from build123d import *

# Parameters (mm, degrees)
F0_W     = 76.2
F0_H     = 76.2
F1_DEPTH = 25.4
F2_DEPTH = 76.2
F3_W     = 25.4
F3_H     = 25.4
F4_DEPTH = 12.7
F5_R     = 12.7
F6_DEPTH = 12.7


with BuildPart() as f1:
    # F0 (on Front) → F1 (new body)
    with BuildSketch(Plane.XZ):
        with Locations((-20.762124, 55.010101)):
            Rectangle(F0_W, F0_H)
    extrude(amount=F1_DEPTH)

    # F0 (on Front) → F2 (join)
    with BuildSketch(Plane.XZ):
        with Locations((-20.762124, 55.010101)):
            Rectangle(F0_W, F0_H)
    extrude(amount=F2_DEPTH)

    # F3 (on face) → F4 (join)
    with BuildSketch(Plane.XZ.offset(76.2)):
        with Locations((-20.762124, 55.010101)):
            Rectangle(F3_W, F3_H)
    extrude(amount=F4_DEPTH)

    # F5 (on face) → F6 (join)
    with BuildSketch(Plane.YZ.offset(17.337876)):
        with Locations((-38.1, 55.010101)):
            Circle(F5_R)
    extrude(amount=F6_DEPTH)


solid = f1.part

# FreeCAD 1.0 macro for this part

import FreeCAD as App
import Part
import Sketcher
Q = App.Units.Quantity

doc = App.newDocument("Part")
body = doc.addObject("PartDesign::Body", "Body")

# Sketch on XZ plane
sketch1 = body.newObject("Sketcher::SketchObject", "Sketch")
sketch1.AttachmentSupport = (doc.getObject("XZ_Plane"), [""])
sketch1.MapMode = "FlatFace"
sketch1.addGeometry([
    Part.LineSegment(App.Vector(-59, 93, 0), App.Vector(-59, 17, 0)),
    Part.LineSegment(App.Vector(-59, 17, 0), App.Vector(17, 17, 0)),
    Part.LineSegment(App.Vector(17, 17, 0), App.Vector(17, 93, 0)),
    Part.LineSegment(App.Vector(17, 93, 0), App.Vector(-59, 93, 0)),
], False)
sketch1.addConstraint([
    Sketcher.Constraint("Coincident", 0, 2, 1, 1),
    Sketcher.Constraint("Coincident", 1, 2, 2, 1),
    Sketcher.Constraint("Coincident", 2, 2, 3, 1),
    Sketcher.Constraint("Coincident", 3, 2, 0, 1),
    Sketcher.Constraint("Vertical", 0),
    Sketcher.Constraint("Horizontal", 1),
    Sketcher.Constraint("Vertical", 2),
    Sketcher.Constraint("Horizontal", 3),
    Sketcher.Constraint("Equal", 3, 0),
    Sketcher.Constraint("DistanceX", 1, 1, 1, 2, Q("3 in")),
    Sketcher.Constraint("DistanceY", -1, 1, 0, 2, Q("16.910101 mm")),
    Sketcher.Constraint("DistanceX", 0, 2, -1, 1, Q("58.862124 mm")),
])
pad1 = body.newObject("PartDesign::Pad", "Pad")
pad1.Profile = sketch1
pad1.Length = Q("1 in")

# Sketch on XZ plane
sketch2 = body.newObject("Sketcher::SketchObject", "Sketch001")
sketch2.AttachmentSupport = (doc.getObject("XZ_Plane"), [""])
sketch2.MapMode = "FlatFace"
sketch2.addGeometry([
    Part.LineSegment(App.Vector(-59, 93, 0), App.Vector(-59, 17, 0)),
    Part.LineSegment(App.Vector(-59, 17, 0), App.Vector(17, 17, 0)),
    Part.LineSegment(App.Vector(17, 17, 0), App.Vector(17, 93, 0)),
    Part.LineSegment(App.Vector(17, 93, 0), App.Vector(-59, 93, 0)),
], False)
sketch2.addConstraint([
    Sketcher.Constraint("Coincident", 0, 2, 1, 1),
    Sketcher.Constraint("Coincident", 1, 2, 2, 1),
    Sketcher.Constraint("Coincident", 2, 2, 3, 1),
    Sketcher.Constraint("Coincident", 3, 2, 0, 1),
    Sketcher.Constraint("Vertical", 0),
    Sketcher.Constraint("Horizontal", 1),
    Sketcher.Constraint("Vertical", 2),
    Sketcher.Constraint("Horizontal", 3),
    Sketcher.Constraint("Equal", 3, 0),
    Sketcher.Constraint("DistanceX", 1, 1, 1, 2, Q("3 in")),
    Sketcher.Constraint("DistanceY", -1, 1, 0, 2, Q("16.910101 mm")),
    Sketcher.Constraint("DistanceX", 0, 2, -1, 1, Q("58.862124 mm")),
])
pad2 = body.newObject("PartDesign::Pad", "Pad001")
pad2.Profile = sketch2
pad2.Length = Q("3 in")

# Sketch on XZ plane
sketch3 = body.newObject("Sketcher::SketchObject", "Sketch002")
sketch3.AttachmentSupport = (doc.getObject("XZ_Plane"), [""])
sketch3.MapMode = "FlatFace"
sketch3.AttachmentOffset = App.Placement(App.Vector(0, 0, 3 * 25.4), App.Rotation())
sketch3.addGeometry([
    Part.LineSegment(App.Vector(-33, 68, 0), App.Vector(-33, 42, 0)),
    Part.LineSegment(App.Vector(-33, 42, 0), App.Vector(-8, 42, 0)),
    Part.LineSegment(App.Vector(-8, 42, 0), App.Vector(-8, 68, 0)),
    Part.LineSegment(App.Vector(-8, 68, 0), App.Vector(-33, 68, 0)),
], False)
sketch3.addConstraint([
    Sketcher.Constraint("Coincident", 0, 2, 1, 1),
    Sketcher.Constraint("Coincident", 1, 2, 2, 1),
    Sketcher.Constraint("Coincident", 2, 2, 3, 1),
    Sketcher.Constraint("Coincident", 3, 2, 0, 1),
    Sketcher.Constraint("Vertical", 0),
    Sketcher.Constraint("Horizontal", 1),
    Sketcher.Constraint("Vertical", 2),
    Sketcher.Constraint("Horizontal", 3),
    Sketcher.Constraint("Equal", 3, 0),
    Sketcher.Constraint("DistanceX", 1, 1, 1, 2, Q("1 in")),
    Sketcher.Constraint("DistanceY", -1, 1, 0, 2, Q("42.310101 mm")),
    Sketcher.Constraint("DistanceX", 0, 2, -1, 1, Q("33.462124 mm")),
])
pad3 = body.newObject("PartDesign::Pad", "Pad002")
pad3.Profile = sketch3
pad3.Length = Q("0.5 in")

# Sketch on YZ plane
sketch4 = body.newObject("Sketcher::SketchObject", "Sketch003")
sketch4.AttachmentSupport = (doc.getObject("YZ_Plane"), [""])
sketch4.MapMode = "FlatFace"
sketch4.AttachmentOffset = App.Placement(App.Vector(0, 0, 17.337876), App.Rotation())
sketch4.addGeometry(Part.Circle(App.Vector(-38, 55, 0), App.Vector(0, 0, 1), 13), False)
sketch4.addConstraint([
    Sketcher.Constraint("Diameter", 0, Q("1 in")),
    Sketcher.Constraint("DistanceX", 0, 3, -1, 1, Q("1.5 in")),
    Sketcher.Constraint("DistanceY", -1, 1, 0, 3, Q("55.010101 mm")),
])
pad4 = body.newObject("PartDesign::Pad", "Pad003")
pad4.Profile = sketch4
pad4.Length = Q("0.5 in")

doc.recompute()
